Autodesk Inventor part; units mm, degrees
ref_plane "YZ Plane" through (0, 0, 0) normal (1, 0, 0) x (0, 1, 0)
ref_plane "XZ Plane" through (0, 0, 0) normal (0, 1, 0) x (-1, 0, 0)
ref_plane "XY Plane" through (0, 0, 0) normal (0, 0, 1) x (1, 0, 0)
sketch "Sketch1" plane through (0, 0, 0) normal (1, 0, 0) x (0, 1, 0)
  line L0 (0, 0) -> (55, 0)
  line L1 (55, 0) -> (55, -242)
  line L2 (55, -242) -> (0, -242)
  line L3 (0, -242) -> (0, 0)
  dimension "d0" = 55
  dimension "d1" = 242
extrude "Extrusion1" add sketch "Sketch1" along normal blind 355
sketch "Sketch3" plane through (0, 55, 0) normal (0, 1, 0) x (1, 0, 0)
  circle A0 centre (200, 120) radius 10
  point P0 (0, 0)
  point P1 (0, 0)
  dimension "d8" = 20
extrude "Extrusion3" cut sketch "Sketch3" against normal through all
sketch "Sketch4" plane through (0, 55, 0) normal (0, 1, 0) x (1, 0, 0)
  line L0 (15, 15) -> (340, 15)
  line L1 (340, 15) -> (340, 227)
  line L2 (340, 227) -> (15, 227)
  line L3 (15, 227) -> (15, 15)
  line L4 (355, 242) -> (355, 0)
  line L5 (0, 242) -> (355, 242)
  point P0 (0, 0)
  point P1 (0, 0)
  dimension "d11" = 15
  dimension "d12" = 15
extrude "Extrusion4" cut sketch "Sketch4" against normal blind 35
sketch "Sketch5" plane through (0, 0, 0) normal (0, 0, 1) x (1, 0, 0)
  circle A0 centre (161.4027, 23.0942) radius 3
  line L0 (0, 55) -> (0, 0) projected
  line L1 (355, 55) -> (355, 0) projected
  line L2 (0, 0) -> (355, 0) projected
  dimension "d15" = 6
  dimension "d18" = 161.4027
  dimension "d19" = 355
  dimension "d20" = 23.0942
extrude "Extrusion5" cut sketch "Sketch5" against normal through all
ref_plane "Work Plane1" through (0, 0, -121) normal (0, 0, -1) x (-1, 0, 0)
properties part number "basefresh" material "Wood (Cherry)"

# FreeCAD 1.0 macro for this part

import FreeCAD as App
import Part
import Sketcher

V = App.Vector


def add_polygon(sketch, points):
    """Adds a closed chain of lines whose ends are joined by coincident constraints."""
    first, n = sketch.GeometryCount, len(points)
    for a, b in zip(points, points[1:] + points[:1]):
        sketch.addGeometry(Part.LineSegment(App.Vector(*a, 0), App.Vector(*b, 0)), False)
    for i in range(n):
        sketch.addConstraint(Sketcher.Constraint("Coincident", first + i, 2, first + (i + 1) % n, 1))

doc = App.newDocument("Part")
body = doc.addObject("PartDesign::Body", "Body")

# Sketch on YZ plane
sketch1 = body.newObject("Sketcher::SketchObject", "Sketch")
sketch1.AttachmentSupport = (doc.getObject("YZ_Plane"), [""])
sketch1.MapMode = "FlatFace"
add_polygon(sketch1, [(55, 0), (0, 0), (0, -242), (55, -242)])  # lines 0-3
sketch1.addConstraint([
    Sketcher.Constraint("Horizontal", 0),
    Sketcher.Constraint("Vertical", 1),
    Sketcher.Constraint("Horizontal", 2),
    Sketcher.Constraint("Vertical", 3),
    Sketcher.Constraint("Coincident", 0, 2, -1, 1),
    Sketcher.Constraint("DistanceX", 0, 2, 0, 1, 55.0),
    Sketcher.Constraint("DistanceY", 1, 2, 1, 1, 242.0),
])
pad1 = body.newObject("PartDesign::Pad", "Pad")
pad1.Profile = sketch1
pad1.Length = 355

# Sketch on XZ plane
sketch2 = body.newObject("Sketcher::SketchObject", "Sketch001")
sketch2.AttachmentSupport = (doc.getObject("XZ_Plane"), [""])
sketch2.MapMode = "FlatFace"
sketch2.AttachmentOffset = App.Placement(V(0, 0, -55), App.Rotation())
sketch2.addGeometry(Part.Circle(V(200, -120, 0), V(0, 0, 1), 10), False)
sketch2.addConstraint([
    Sketcher.Constraint("Diameter", 0, 20.0),
    Sketcher.Constraint("DistanceX", -1, 1, 0, 3, 200.0),
    Sketcher.Constraint("DistanceY", 0, 3, -1, 1, 120.0),
])
pocket1 = body.newObject("PartDesign::Pocket", "Pocket")
pocket1.Profile = sketch2
pocket1.Type = "ThroughAll"
pocket1.Reversed = True

# Sketch on XZ plane
sketch3 = body.newObject("Sketcher::SketchObject", "Sketch002")
sketch3.AttachmentSupport = (doc.getObject("XZ_Plane"), [""])
sketch3.MapMode = "FlatFace"
sketch3.AttachmentOffset = App.Placement(V(0, 0, -55), App.Rotation())
add_polygon(sketch3, [(15, -227), (15, -15), (340, -15), (340, -227)])  # lines 0-3
sketch3.addConstraint([
    Sketcher.Constraint("Vertical", 0),
    Sketcher.Constraint("Horizontal", 1),
    Sketcher.Constraint("Vertical", 2),
    Sketcher.Constraint("Horizontal", 3),
    Sketcher.Constraint("DistanceX", -1, 1, 0, 2, 15.0),
    Sketcher.Constraint("DistanceY", 0, 2, -1, 1, 15.0),
    Sketcher.Constraint("DistanceX", 1, 1, 1, 2, 325.0),
    Sketcher.Constraint("DistanceY", 0, 1, 0, 2, 212.0),
])
pocket2 = body.newObject("PartDesign::Pocket", "Pocket001")
pocket2.Profile = sketch3
pocket2.Length = 35
pocket2.Reversed = True

# Sketch on XY plane
sketch4 = body.newObject("Sketcher::SketchObject", "Sketch003")
sketch4.AttachmentSupport = (doc.getObject("XY_Plane"), [""])
sketch4.MapMode = "FlatFace"
sketch4.addGeometry(Part.Circle(V(161.4, 23.1, 0), V(0, 0, 1), 3), False)
sketch4.addConstraint([
    Sketcher.Constraint("Diameter", 0, 6.0),
    Sketcher.Constraint("DistanceX", -1, 1, 0, 3, 161.4027),
    Sketcher.Constraint("DistanceY", -1, 1, 0, 3, 23.0942),
])
pocket3 = body.newObject("PartDesign::Pocket", "Pocket002")
pocket3.Profile = sketch4
pocket3.Type = "ThroughAll"

doc.recompute()
